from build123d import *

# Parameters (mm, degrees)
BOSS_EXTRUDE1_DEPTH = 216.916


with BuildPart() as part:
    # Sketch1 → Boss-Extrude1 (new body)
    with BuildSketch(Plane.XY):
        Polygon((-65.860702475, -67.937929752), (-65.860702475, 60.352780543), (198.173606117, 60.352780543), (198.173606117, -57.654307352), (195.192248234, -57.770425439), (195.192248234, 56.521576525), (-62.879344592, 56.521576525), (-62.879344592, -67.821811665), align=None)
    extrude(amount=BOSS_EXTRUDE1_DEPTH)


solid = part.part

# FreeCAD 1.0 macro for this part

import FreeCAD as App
import Part
import Sketcher
Q = App.Units.Quantity


def add_polygon(sketch, points):
    """Adds a closed chain of lines whose ends are joined by coincident constraints."""
    first, n = sketch.GeometryCount, len(points)
    for a, b in zip(points, points[1:] + points[:1]):
        sketch.addGeometry(Part.LineSegment(App.Vector(*a, 0), App.Vector(*b, 0)), False)
    for i in range(n):
        sketch.addConstraint(Sketcher.Constraint("Coincident", first + i, 2, first + (i + 1) % n, 1))

doc = App.newDocument("Part")
body = doc.addObject("PartDesign::Body", "Body")

sketch1 = body.newObject("Sketcher::SketchObject", "Sketch")
sketch1.AttachmentSupport = (doc.getObject("XY_Plane"), [""])
sketch1.MapMode = "FlatFace"
add_polygon(sketch1, [(-65.860702, 60.352781), (-65.860702, -67.93793), (-62.879345, -67.821812), (-62.879345, 56.521577), (195.192248, 56.521577), (195.192248, -57.770425), (198.173606, -57.654307), (198.173606, 60.352781)])
sketch1.addConstraint(Sketcher.Constraint("Vertical", 0))
sketch1.addConstraint(Sketcher.Constraint("Vertical", 2))
sketch1.addConstraint(Sketcher.Constraint("Horizontal", 3))
sketch1.addConstraint(Sketcher.Constraint("Vertical", 4))
sketch1.addConstraint(Sketcher.Constraint("Vertical", 6))
sketch1.addConstraint(Sketcher.Constraint("Horizontal", 7))
sketch1.addConstraint(Sketcher.Constraint("Parallel", 1, 5))
sketch1.addConstraint(Sketcher.Constraint("Equal", 1, 5))
sketch1.addConstraint(Sketcher.Constraint("DistanceY", 4, 2, 4, 1, 114.292002))
sketch1.addConstraint(Sketcher.Constraint("DistanceX", 7, 2, 7, 1, 264.034309))
sketch1.addConstraint(Sketcher.Constraint("DistanceY", 0, 2, 0, 1, 128.29071))
sketch1.addConstraint(Sketcher.Constraint("DistanceY", 2, 1, 2, 2, 124.343388))
sketch1.addConstraint(Sketcher.Constraint("Distance", 1, 2.983618))
sketch1.addConstraint(Sketcher.Constraint("DistanceX", 3, 1, 3, 2, 258.071593))
sketch1.addConstraint(Sketcher.Constraint("DistanceY", 0, 2, -1, 1, 67.93793))
sketch1.addConstraint(Sketcher.Constraint("DistanceX", -1, 1, 3, 2, 195.192248))
pad1 = body.newObject("PartDesign::Pad", "Pad")
pad1.Profile = sketch1
pad1.Length = Q("8.54 in")

doc.recompute()
